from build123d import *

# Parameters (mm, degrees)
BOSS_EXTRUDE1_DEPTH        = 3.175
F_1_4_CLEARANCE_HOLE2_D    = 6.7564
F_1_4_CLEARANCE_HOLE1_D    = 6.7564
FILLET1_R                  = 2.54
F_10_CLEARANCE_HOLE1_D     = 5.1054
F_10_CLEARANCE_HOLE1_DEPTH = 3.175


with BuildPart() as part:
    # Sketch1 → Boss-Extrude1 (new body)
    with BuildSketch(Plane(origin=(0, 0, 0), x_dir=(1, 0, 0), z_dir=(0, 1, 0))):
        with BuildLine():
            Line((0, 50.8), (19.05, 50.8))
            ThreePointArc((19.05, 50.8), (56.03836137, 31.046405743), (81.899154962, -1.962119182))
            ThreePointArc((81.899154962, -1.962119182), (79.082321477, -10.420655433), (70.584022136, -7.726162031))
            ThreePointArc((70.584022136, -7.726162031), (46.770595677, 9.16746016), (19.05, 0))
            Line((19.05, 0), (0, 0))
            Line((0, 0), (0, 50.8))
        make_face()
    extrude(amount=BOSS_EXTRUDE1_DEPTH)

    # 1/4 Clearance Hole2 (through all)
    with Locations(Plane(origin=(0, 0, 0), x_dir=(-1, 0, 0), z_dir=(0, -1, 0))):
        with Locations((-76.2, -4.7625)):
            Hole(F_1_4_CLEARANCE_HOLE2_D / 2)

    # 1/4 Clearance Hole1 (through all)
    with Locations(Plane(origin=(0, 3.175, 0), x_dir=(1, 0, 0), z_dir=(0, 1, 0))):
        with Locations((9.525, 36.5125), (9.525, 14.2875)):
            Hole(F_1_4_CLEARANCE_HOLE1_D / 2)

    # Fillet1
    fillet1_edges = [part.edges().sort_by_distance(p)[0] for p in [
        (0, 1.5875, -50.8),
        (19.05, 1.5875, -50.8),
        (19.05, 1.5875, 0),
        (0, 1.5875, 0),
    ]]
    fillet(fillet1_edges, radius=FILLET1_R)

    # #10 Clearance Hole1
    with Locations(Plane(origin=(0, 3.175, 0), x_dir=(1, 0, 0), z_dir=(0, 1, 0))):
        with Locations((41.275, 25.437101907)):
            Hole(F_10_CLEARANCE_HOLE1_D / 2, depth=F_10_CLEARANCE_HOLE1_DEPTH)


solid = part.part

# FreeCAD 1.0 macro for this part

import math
import FreeCAD as App
import Part
import Sketcher
Q = App.Units.Quantity


def edges_at(feature, points):
    """Names of the edges that pass closest to the given points."""
    edges = feature.Shape.Edges
    near = lambda p: min(range(len(edges)), key=lambda i: edges[i].distToShape(Part.Vertex(*p))[0])
    return sorted({f"Edge{near(p) + 1}" for p in points})

doc = App.newDocument("Part")
body = doc.addObject("PartDesign::Body", "Body")

# Sketch on XZ plane
sketch1 = body.newObject("Sketcher::SketchObject", "Sketch")
sketch1.AttachmentSupport = (doc.getObject("XZ_Plane"), [""])
sketch1.MapMode = "FlatFace"
sketch1.addGeometry(Part.LineSegment(App.Vector(19, -51, 0), App.Vector(0, -51, 0)), False)
sketch1.addGeometry(Part.LineSegment(App.Vector(0, -51, 0), App.Vector(0, 0, 0)), False)
sketch1.addGeometry(Part.LineSegment(App.Vector(0, 0, 0), App.Vector(19, 0, 0)), False)
sketch1.addGeometry(Part.ArcOfCircle(Part.Circle(App.Vector(42, 23, 0), App.Vector(0, 0, 1), 32), math.radians(-135), math.radians(-28)), False)
sketch1.addGeometry(Part.ArcOfCircle(Part.Circle(App.Vector(76, 5, 0), App.Vector(0, 0, 1), 6), math.radians(-26), math.radians(152)), False)
sketch1.addGeometry(Part.ArcOfCircle(Part.Circle(App.Vector(-9, 47, 0), App.Vector(0, 0, 1), 102), math.radians(-74), math.radians(-26)), False)
sketch1.addConstraint(Sketcher.Constraint("Coincident", 0, 2, 1, 1))
sketch1.addConstraint(Sketcher.Constraint("Coincident", 1, 2, 2, 1))
sketch1.addConstraint(Sketcher.Constraint("Coincident", 2, 2, 3, 1))
sketch1.addConstraint(Sketcher.Constraint("Tangent", 3, 2, 4, 2))
sketch1.addConstraint(Sketcher.Constraint("Tangent", 4, 1, 5, 2))
sketch1.addConstraint(Sketcher.Constraint("Coincident", 5, 1, 0, 1))
sketch1.addConstraint(Sketcher.Constraint("Horizontal", 0))
sketch1.addConstraint(Sketcher.Constraint("Vertical", 1))
sketch1.addConstraint(Sketcher.Constraint("Horizontal", 2))
sketch1.addConstraint(Sketcher.Constraint("Coincident", 1, 2, -1, 1))
sketch1.addConstraint(Sketcher.Constraint("Vertical", 2, 2, 5, 1))
sketch1.addConstraint(Sketcher.Constraint("Radius", 5, Q("4 in")))
sketch1.addConstraint(Sketcher.Constraint("DistanceY", 1, 1, 1, 2, Q("2 in")))
sketch1.addConstraint(Sketcher.Constraint("Radius", 4, Q("0.25 in")))
sketch1.addConstraint(Sketcher.Constraint("DistanceX", -1, 1, 4, 3, Q("3 in")))
sketch1.addConstraint(Sketcher.Constraint("DistanceX", 0, 2, 0, 1, Q("0.75 in")))
sketch1.addConstraint(Sketcher.Constraint("DistanceY", -1, 1, 4, 3, Q("0.1875 in")))
sketch1.addConstraint(Sketcher.Constraint("Radius", 3, Q("32.349068 mm")))
pad1 = body.newObject("PartDesign::Pad", "Pad")
pad1.Profile = sketch1
pad1.Length = Q("0.125 in")
pad1.Reversed = True

# Sketch on XZ plane
sketch2 = body.newObject("Sketcher::SketchObject", "Sketch001")
sketch2.AttachmentSupport = (doc.getObject("XZ_Plane"), [""])
sketch2.MapMode = "FlatFace"
sketch2.addGeometry(Part.Circle(App.Vector(76.2, 4.8, 0), App.Vector(0, 0, 1), 3.4), False)
sketch2.addConstraint(Sketcher.Constraint("Diameter", 0, Q("0.266 in")))
sketch2.addConstraint(Sketcher.Constraint("DistanceX", -1, 1, 0, 3, Q("3 in")))
sketch2.addConstraint(Sketcher.Constraint("DistanceY", -1, 1, 0, 3, Q("0.1875 in")))
doc.recompute()
hole = body.newObject("PartDesign::Hole", "Hole")
hole.Profile = sketch2
hole.ThreadType = "None"
hole.Diameter = Q("0.266 in")
hole.DepthType = "ThroughAll"

# Sketch on XZ plane
sketch3 = body.newObject("Sketcher::SketchObject", "Sketch002")
sketch3.AttachmentSupport = (doc.getObject("XZ_Plane"), [""])
sketch3.MapMode = "FlatFace"
sketch3.AttachmentOffset = App.Placement(App.Vector(0, 0, -0.125 * 25.4), App.Rotation())
sketch3.addGeometry(Part.Circle(App.Vector(9.5, -36.5, 0), App.Vector(0, 0, 1), 3.4), False)
sketch3.addGeometry(Part.Circle(App.Vector(9.5, -14.3, 0), App.Vector(0, 0, 1), 3.4), False)
sketch3.addConstraint(Sketcher.Constraint("Equal", 0, 1))
sketch3.addConstraint(Sketcher.Constraint("Vertical", 0, 3, 1, 3))
sketch3.addConstraint(Sketcher.Constraint("Diameter", 0, Q("0.266 in")))
sketch3.addConstraint(Sketcher.Constraint("DistanceX", -1, 1, 0, 3, Q("0.375 in")))
sketch3.addConstraint(Sketcher.Constraint("DistanceY", 0, 3, -1, 1, Q("1.4375 in")))
sketch3.addConstraint(Sketcher.Constraint("DistanceY", 1, 3, -1, 1, Q("0.5625 in")))
doc.recompute()
hole2 = body.newObject("PartDesign::Hole", "Hole001")
hole2.Profile = sketch3
hole2.ThreadType = "None"
hole2.Diameter = Q("0.266 in")
hole2.DepthType = "ThroughAll"
hole2.Reversed = True
doc.recompute()

fillet = body.newObject("PartDesign::Fillet", "Fillet")
fillet.Base = (hole2, edges_at(hole2, [
    (0, 1.587, -50.8),
    (19.05, 1.587, -50.8),
    (19.05, 1.587, 0),
    (0, 1.587, 0),
]))
fillet.Radius = Q("0.1 in")

# Sketch on XZ plane
sketch4 = body.newObject("Sketcher::SketchObject", "Sketch003")
sketch4.AttachmentSupport = (doc.getObject("XZ_Plane"), [""])
sketch4.MapMode = "FlatFace"
sketch4.AttachmentOffset = App.Placement(App.Vector(0, 0, -0.125 * 25.4), App.Rotation())
sketch4.addGeometry(Part.Circle(App.Vector(41.3, -25.4, 0), App.Vector(0, 0, 1), 2.6), False)
sketch4.addConstraint(Sketcher.Constraint("Diameter", 0, Q("0.201 in")))
sketch4.addConstraint(Sketcher.Constraint("DistanceX", -1, 1, 0, 3, Q("1.625 in")))
sketch4.addConstraint(Sketcher.Constraint("DistanceY", 0, 3, -1, 1, Q("25.437102 mm")))
doc.recompute()
hole3 = body.newObject("PartDesign::Hole", "Hole002")
hole3.Profile = sketch4
hole3.ThreadType = "None"
hole3.Diameter = Q("0.201 in")
hole3.DepthType = "Dimension"
hole3.Depth = Q("0.125 in")
hole3.DrillPoint = "Flat"
hole3.Reversed = True

doc.recompute()
